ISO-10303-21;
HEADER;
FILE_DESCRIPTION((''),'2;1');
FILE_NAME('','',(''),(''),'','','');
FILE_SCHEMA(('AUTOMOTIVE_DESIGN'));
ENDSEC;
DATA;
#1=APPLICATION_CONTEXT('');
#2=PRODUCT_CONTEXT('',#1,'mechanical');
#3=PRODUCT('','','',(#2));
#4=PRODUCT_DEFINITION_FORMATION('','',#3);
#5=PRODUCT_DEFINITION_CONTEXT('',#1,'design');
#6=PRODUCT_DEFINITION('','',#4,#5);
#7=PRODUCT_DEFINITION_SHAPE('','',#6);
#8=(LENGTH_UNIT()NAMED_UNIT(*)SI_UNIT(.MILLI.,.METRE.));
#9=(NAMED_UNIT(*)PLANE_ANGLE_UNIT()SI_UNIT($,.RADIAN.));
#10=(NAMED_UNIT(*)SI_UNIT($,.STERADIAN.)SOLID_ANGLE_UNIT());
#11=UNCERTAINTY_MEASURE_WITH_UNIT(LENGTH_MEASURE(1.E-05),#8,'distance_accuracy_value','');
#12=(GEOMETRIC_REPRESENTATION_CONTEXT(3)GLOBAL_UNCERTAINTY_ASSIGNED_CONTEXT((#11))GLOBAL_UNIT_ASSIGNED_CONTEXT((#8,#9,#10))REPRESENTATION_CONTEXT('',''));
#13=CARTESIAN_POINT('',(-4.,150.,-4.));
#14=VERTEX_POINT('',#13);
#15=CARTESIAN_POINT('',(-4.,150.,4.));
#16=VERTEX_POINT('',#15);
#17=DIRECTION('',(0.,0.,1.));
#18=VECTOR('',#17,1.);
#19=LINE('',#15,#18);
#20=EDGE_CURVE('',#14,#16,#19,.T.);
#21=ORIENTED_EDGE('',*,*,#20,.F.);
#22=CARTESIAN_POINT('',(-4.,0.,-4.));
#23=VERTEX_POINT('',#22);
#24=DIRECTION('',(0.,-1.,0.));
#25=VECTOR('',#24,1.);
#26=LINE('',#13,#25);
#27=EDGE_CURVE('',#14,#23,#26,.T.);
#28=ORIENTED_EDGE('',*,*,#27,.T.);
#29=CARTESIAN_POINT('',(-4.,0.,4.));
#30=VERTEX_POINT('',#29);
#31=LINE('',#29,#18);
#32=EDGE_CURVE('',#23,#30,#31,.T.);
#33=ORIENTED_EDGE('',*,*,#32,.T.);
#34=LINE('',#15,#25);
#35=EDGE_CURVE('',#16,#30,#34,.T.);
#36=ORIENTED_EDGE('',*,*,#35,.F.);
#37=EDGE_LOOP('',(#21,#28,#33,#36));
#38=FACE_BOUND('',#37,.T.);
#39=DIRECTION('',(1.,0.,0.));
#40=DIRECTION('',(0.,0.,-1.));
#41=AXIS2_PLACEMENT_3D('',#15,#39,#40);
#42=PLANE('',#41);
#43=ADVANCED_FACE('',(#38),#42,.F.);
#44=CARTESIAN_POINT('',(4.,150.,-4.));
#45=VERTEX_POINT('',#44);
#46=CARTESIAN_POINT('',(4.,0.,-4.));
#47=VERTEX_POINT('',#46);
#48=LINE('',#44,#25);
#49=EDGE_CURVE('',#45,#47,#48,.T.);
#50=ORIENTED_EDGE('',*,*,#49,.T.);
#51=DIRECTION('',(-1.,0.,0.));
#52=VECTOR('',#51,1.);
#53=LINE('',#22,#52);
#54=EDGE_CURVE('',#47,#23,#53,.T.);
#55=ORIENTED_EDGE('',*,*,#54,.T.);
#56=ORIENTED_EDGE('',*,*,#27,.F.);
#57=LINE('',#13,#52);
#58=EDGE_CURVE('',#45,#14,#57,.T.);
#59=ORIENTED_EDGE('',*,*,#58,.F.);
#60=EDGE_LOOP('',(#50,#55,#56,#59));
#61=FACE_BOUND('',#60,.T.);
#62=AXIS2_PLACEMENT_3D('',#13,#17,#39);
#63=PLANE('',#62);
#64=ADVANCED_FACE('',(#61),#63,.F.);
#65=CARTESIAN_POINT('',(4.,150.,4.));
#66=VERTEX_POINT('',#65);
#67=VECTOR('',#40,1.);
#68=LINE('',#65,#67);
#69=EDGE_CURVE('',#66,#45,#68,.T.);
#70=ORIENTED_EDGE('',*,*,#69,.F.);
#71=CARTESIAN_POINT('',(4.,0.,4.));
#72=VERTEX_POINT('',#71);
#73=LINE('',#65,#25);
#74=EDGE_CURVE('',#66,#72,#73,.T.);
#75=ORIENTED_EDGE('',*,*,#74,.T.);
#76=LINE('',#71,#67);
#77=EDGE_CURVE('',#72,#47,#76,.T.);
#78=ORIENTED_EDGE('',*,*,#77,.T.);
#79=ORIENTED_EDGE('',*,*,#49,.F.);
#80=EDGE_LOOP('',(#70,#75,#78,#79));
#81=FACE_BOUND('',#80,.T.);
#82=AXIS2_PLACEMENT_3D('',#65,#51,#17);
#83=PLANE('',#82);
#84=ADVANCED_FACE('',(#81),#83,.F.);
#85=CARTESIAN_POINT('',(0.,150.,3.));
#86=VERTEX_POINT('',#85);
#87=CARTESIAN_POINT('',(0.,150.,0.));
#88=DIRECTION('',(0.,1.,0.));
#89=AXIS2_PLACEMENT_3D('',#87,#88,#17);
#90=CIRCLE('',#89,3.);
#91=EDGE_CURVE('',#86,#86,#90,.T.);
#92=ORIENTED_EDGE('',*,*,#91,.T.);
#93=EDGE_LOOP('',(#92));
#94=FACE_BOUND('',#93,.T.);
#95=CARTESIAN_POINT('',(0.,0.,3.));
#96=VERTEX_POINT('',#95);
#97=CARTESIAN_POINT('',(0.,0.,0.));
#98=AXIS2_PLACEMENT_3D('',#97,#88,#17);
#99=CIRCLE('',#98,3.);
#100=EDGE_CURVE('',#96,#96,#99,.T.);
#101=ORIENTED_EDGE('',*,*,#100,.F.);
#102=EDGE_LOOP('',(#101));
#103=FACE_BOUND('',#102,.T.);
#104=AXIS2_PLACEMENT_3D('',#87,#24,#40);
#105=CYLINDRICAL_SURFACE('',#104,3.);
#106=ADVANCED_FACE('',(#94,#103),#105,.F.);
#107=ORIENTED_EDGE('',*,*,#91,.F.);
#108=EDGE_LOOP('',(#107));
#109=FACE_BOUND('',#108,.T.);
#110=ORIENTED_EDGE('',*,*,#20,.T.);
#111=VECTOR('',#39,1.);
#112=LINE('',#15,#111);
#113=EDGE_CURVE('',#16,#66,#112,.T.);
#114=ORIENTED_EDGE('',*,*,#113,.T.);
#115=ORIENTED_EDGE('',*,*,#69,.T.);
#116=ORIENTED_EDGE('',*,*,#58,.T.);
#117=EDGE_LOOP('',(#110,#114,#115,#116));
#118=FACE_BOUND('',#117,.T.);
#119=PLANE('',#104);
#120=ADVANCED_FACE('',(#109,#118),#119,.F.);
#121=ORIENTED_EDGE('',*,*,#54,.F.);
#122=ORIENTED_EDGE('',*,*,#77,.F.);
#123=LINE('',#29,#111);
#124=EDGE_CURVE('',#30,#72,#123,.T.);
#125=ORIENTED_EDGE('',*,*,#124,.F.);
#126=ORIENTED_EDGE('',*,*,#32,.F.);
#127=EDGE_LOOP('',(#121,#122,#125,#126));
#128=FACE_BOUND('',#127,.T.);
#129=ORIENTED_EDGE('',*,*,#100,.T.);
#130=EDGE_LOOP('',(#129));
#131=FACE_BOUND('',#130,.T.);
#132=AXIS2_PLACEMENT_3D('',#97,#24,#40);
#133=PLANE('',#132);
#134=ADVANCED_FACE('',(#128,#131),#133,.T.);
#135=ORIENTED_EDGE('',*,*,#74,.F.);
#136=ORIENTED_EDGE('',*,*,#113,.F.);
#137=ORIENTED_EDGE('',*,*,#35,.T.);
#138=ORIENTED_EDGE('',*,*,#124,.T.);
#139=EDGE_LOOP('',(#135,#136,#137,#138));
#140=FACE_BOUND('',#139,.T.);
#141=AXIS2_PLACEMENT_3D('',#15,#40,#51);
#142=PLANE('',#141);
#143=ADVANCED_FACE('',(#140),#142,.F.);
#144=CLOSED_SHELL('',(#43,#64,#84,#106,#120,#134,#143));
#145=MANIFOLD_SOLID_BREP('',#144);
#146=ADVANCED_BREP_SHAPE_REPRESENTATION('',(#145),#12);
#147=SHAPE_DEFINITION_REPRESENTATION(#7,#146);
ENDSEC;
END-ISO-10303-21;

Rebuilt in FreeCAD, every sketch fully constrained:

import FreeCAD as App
import Part
import Sketcher

V = App.Vector

doc = App.newDocument("Part")
body = doc.addObject("PartDesign::Body", "Body")

# Sketch on XZ plane
sketch1 = body.newObject("Sketcher::SketchObject", "Sketch")
sketch1.AttachmentSupport = (doc.getObject("XZ_Plane"), [""])
sketch1.MapMode = "FlatFace"
sketch1.addGeometry(Part.LineSegment(V(-4, -4, 0), V(-4, 4, 0)), False)
sketch1.addGeometry(Part.LineSegment(V(-4, 4, 0), V(4, 4, 0)), False)
sketch1.addGeometry(Part.LineSegment(V(4, 4, 0), V(4, -4, 0)), False)
sketch1.addGeometry(Part.LineSegment(V(4, -4, 0), V(-4, -4, 0)), False)
sketch1.addGeometry(Part.Circle(V(0, 0, 0), V(0, 0, 1), 3), False)
sketch1.addConstraint(Sketcher.Constraint("Coincident", 0, 2, 1, 1))
sketch1.addConstraint(Sketcher.Constraint("Coincident", 1, 2, 2, 1))
sketch1.addConstraint(Sketcher.Constraint("Coincident", 2, 2, 3, 1))
sketch1.addConstraint(Sketcher.Constraint("Coincident", 3, 2, 0, 1))
sketch1.addConstraint(Sketcher.Constraint("Vertical", 0))
sketch1.addConstraint(Sketcher.Constraint("Horizontal", 1))
sketch1.addConstraint(Sketcher.Constraint("Vertical", 2))
sketch1.addConstraint(Sketcher.Constraint("Horizontal", 3))
sketch1.addConstraint(Sketcher.Constraint("Coincident", 4, 3, -1, 1))
sketch1.addConstraint(Sketcher.Constraint("Symmetric", 0, 2, 2, 2, -1, 1))
sketch1.addConstraint(Sketcher.Constraint("Equal", 3, 0))
sketch1.addConstraint(Sketcher.Constraint("Diameter", 4, 6.0))
sketch1.addConstraint(Sketcher.Constraint("DistanceX", 1, 1, 1, 2, 8.0))
pad1 = body.newObject("PartDesign::Pad", "Pad")
pad1.Profile = sketch1
pad1.Length = 150
pad1.Reversed = True

doc.recompute()
